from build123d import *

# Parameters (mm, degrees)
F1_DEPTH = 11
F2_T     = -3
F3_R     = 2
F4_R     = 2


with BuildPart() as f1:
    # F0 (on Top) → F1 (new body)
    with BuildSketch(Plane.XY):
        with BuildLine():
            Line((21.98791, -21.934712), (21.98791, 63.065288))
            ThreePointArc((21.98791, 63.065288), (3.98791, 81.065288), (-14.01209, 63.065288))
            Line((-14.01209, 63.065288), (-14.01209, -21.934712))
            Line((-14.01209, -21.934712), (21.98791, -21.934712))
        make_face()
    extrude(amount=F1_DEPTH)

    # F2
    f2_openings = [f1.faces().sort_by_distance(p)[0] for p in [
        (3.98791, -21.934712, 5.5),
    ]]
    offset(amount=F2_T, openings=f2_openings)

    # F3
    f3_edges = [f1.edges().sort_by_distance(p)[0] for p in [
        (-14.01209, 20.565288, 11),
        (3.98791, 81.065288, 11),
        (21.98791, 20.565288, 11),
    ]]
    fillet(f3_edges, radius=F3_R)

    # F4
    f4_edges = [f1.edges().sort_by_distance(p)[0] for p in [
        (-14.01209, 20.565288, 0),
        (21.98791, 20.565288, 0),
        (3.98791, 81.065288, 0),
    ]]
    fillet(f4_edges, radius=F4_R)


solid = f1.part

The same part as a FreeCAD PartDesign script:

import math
import FreeCAD as App
import Part
import Sketcher
from FreeCAD import Vector
Q = App.Units.Quantity


def edges_at(feature, points):
    """Names of the edges that pass closest to the given points."""
    edges = feature.Shape.Edges
    near = lambda p: min(range(len(edges)), key=lambda i: edges[i].distToShape(Part.Vertex(*p))[0])
    return sorted({f"Edge{near(p) + 1}" for p in points})


def faces_at(feature, points):
    """Names of the faces that lie closest to the given points."""
    faces = feature.Shape.Faces
    near = lambda p: min(range(len(faces)), key=lambda i: faces[i].distToShape(Part.Vertex(*p))[0])
    return sorted({f"Face{near(p) + 1}" for p in points})

doc = App.newDocument("Part")
params = doc.addObject("Spreadsheet::Sheet", "Params")
for row, (alias, value) in enumerate([
    ("sketch1_radius", "18 mm"),
    ("sketch1_height", "85 mm"),
    ("pad1_length", "11 mm"),
    ("thickness_wall", "3 mm"),
    ("fillet_radius", "2 mm"),
    ("fillet2_radius", "2 mm"),
], start=1):
    params.set(f"A{row}", alias)
    params.set(f"B{row}", "=" + value)
    params.setAlias(f"B{row}", alias)

body = doc.addObject("PartDesign::Body", "Body")

# Sketch on XY plane
sketch1 = body.newObject("Sketcher::SketchObject", "Sketch")
sketch1.AttachmentSupport = (doc.getObject("XY_Plane"), [""])
sketch1.MapMode = "FlatFace"
sketch1.addGeometry(Part.LineSegment(Vector(21.98791, -21.934712, 0), Vector(21.98791, 63.065288, 0)), False)
sketch1.addGeometry(Part.ArcOfCircle(Part.Circle(Vector(3.98791, 63.065288, 0), Vector(0, 0, 1), 18), math.radians(0), math.radians(180)), False)
sketch1.addGeometry(Part.LineSegment(Vector(-14.01209, 63.065288, 0), Vector(-14.01209, -21.934712, 0)), False)
sketch1.addGeometry(Part.LineSegment(Vector(-14.01209, -21.934712, 0), Vector(21.98791, -21.934712, 0)), False)
sketch1.addConstraint(Sketcher.Constraint("Tangent", 0, 2, 1, 1))
sketch1.addConstraint(Sketcher.Constraint("Tangent", 1, 2, 2, 1))
sketch1.addConstraint(Sketcher.Constraint("Coincident", 2, 2, 3, 1))
sketch1.addConstraint(Sketcher.Constraint("Coincident", 3, 2, 0, 1))
sketch1.addConstraint(Sketcher.Constraint("Vertical", 0))
sketch1.addConstraint(Sketcher.Constraint("Vertical", 2))
sketch1.addConstraint(Sketcher.Constraint("Horizontal", 3))
sketch1.addConstraint(Sketcher.Constraint("Radius", 1, Q("18 mm")))
sketch1.addConstraint(Sketcher.Constraint("DistanceY", 0, 1, 0, 2, Q("85 mm")))
sketch1.addConstraint(Sketcher.Constraint("DistanceX", -1, 1, 1, 3, Q("3.98791 mm")))
sketch1.addConstraint(Sketcher.Constraint("DistanceY", -1, 1, 1, 3, Q("63.065288 mm")))
sketch1.setExpression("Constraints[7]", "Params.sketch1_radius")
sketch1.setExpression("Constraints[8]", "Params.sketch1_height")
pad1 = body.newObject("PartDesign::Pad", "Pad")
pad1.Profile = sketch1
pad1.setExpression("Length", "Params.pad1_length")
doc.recompute()

thickness = body.newObject("PartDesign::Thickness", "Thickness")
thickness.Base = (pad1, faces_at(pad1, [(3.988, -21.935, 5.5)]))
thickness.setExpression("Value", "Params.thickness_wall")
thickness.Reversed = True
thickness.Join = "Arc"
doc.recompute()

fillet = body.newObject("PartDesign::Fillet", "Fillet")
fillet.Base = (thickness, edges_at(thickness, [(-14.012, 20.565, 11), (3.988, 81.065, 11), (21.988, 20.565, 11)]))
fillet.setExpression("Radius", "Params.fillet_radius")
doc.recompute()

fillet2 = body.newObject("PartDesign::Fillet", "Fillet001")
fillet2.Base = (fillet, edges_at(fillet, [(-14.012, 20.565, 0), (21.988, 20.565, 0), (3.988, 81.065, 0)]))
fillet2.setExpression("Radius", "Params.fillet2_radius")

doc.recompute()
